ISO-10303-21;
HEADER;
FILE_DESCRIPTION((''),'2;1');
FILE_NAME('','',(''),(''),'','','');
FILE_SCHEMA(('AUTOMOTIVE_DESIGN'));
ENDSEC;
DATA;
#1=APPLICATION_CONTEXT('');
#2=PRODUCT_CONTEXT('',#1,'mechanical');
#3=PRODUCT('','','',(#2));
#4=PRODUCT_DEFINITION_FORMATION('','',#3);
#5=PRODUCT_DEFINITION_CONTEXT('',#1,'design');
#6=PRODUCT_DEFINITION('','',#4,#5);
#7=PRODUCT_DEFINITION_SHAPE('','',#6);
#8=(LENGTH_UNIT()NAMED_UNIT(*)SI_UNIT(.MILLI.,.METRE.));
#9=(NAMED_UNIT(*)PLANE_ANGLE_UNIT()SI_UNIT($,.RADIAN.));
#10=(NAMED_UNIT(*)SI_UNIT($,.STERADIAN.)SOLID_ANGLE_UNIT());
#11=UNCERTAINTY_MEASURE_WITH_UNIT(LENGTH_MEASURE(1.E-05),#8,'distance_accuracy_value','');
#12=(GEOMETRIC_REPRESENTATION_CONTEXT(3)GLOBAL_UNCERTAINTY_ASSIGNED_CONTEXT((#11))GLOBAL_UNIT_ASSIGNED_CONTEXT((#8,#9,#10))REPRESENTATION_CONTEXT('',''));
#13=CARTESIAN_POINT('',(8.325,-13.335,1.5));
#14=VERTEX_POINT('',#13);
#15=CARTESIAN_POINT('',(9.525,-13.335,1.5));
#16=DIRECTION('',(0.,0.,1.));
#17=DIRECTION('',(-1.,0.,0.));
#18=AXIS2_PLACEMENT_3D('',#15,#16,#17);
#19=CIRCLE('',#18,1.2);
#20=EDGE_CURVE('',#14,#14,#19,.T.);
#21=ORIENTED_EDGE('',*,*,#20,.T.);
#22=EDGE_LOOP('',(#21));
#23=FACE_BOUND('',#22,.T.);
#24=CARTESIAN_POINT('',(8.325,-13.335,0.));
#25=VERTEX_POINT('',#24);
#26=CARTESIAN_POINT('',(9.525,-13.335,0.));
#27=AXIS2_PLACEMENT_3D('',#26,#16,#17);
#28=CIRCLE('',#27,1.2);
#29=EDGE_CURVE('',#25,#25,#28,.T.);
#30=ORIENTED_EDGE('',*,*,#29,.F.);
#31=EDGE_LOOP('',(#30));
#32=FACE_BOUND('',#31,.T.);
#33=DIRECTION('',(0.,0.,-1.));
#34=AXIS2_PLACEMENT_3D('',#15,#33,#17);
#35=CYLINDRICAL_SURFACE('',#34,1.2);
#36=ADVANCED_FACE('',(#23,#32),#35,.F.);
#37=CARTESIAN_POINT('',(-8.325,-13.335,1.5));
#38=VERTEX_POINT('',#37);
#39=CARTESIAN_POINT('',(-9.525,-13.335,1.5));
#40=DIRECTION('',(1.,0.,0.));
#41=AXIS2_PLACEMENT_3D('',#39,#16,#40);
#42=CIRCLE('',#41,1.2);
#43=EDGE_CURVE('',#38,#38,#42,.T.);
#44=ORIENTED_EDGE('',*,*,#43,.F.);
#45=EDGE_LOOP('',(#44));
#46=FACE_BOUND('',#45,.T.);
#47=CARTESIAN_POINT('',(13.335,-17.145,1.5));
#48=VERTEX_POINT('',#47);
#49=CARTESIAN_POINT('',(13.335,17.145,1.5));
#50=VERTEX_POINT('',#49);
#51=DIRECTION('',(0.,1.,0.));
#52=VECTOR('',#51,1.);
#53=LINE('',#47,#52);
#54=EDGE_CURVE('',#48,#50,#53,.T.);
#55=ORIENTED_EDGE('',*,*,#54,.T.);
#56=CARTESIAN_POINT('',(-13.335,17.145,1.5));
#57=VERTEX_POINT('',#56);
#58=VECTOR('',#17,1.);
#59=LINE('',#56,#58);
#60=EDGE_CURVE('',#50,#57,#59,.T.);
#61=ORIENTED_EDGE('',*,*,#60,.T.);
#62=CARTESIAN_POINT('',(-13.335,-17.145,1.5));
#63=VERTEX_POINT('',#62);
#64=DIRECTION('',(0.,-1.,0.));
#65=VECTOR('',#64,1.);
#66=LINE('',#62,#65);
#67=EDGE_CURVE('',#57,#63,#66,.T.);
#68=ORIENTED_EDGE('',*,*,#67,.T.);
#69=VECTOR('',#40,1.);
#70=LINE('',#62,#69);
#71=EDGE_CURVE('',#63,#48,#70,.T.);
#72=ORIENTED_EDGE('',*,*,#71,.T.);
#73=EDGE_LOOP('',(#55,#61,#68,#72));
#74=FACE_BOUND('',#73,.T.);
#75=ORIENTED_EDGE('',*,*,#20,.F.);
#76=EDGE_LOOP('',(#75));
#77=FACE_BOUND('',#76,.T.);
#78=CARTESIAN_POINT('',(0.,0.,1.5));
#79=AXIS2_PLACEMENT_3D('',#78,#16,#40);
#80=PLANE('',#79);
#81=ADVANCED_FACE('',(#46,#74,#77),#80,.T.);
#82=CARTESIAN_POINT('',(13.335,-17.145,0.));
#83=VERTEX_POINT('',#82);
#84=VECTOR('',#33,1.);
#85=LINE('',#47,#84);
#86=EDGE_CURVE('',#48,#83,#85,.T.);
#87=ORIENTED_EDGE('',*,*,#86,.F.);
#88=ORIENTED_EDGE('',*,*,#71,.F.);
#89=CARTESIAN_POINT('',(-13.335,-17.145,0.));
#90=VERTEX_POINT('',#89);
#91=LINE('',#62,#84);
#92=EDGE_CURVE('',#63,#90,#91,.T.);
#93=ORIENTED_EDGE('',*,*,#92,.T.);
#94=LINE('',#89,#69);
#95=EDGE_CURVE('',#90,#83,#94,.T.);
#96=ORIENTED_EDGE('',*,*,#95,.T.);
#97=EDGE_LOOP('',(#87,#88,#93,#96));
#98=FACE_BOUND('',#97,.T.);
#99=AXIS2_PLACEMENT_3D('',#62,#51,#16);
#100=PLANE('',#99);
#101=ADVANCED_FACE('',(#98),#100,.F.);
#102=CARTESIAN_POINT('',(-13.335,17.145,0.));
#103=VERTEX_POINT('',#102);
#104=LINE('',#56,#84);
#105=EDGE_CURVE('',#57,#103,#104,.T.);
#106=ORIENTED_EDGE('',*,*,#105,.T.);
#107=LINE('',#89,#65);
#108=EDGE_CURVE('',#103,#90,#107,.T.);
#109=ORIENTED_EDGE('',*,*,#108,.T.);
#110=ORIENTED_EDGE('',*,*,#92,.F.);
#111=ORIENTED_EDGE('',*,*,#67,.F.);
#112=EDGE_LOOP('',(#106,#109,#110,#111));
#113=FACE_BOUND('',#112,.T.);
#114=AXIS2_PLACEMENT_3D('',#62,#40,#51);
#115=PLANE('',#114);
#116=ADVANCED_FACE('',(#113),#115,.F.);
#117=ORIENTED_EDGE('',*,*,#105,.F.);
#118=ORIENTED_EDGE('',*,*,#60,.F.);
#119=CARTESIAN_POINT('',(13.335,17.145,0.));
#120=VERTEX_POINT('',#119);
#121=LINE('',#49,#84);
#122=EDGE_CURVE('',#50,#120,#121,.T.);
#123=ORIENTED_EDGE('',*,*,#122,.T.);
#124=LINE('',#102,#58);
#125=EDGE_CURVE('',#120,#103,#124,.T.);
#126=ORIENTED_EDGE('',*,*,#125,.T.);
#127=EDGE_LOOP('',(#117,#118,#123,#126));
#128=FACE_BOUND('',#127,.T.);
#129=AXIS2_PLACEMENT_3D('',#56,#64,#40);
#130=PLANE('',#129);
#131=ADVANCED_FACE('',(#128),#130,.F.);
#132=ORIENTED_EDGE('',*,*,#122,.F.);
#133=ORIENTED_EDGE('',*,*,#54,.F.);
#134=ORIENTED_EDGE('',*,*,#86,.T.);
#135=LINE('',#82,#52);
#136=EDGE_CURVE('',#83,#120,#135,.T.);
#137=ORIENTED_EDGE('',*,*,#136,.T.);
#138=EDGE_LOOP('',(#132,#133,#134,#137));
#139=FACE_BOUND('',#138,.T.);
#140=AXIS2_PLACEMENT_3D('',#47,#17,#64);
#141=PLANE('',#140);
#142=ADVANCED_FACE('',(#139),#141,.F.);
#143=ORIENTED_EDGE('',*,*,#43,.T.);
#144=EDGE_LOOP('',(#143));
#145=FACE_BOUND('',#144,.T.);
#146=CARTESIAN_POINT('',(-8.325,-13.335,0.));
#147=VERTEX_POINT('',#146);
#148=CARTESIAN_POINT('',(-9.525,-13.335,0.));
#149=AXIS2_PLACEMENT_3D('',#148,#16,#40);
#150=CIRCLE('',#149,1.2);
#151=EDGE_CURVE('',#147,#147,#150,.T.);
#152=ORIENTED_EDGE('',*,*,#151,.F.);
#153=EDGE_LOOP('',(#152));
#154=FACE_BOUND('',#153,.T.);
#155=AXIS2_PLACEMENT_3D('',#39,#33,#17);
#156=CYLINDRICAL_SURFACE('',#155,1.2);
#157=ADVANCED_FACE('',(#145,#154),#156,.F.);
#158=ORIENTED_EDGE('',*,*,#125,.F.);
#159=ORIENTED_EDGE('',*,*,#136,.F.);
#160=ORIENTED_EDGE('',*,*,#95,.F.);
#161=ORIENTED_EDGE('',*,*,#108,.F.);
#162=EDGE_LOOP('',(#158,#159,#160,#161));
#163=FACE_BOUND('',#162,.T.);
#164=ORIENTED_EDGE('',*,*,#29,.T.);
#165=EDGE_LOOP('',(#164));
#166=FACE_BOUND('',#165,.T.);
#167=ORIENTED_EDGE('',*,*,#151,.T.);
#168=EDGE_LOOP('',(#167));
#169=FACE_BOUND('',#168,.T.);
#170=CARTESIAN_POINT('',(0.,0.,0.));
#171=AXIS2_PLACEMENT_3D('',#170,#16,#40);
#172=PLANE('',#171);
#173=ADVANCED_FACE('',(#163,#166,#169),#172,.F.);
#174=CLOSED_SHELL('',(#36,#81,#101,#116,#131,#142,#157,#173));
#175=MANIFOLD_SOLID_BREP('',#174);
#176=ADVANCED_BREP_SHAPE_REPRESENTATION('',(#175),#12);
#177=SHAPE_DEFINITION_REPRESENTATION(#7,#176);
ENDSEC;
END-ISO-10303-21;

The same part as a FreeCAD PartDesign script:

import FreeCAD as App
import Part
import Sketcher

V = App.Vector
Q = App.Units.Quantity


def add_polygon(sketch, points):
    """Adds a closed chain of lines whose ends are joined by coincident constraints."""
    first, n = sketch.GeometryCount, len(points)
    for a, b in zip(points, points[1:] + points[:1]):
        sketch.addGeometry(Part.LineSegment(App.Vector(*a, 0), App.Vector(*b, 0)), False)
    for i in range(n):
        sketch.addConstraint(Sketcher.Constraint("Coincident", first + i, 2, first + (i + 1) % n, 1))

doc = App.newDocument("Part")
body = doc.addObject("PartDesign::Body", "Body")

# Sketch on XY plane
sketch1 = doc.addObject("Sketcher::SketchObject", "Sketch")
body.addObject(sketch1)
sketch1.AttachmentSupport = (doc.XY_Plane, [""])
sketch1.MapMode = "FlatFace"
add_polygon(sketch1, [(-13.335, -17.145), (13.335, -17.145), (13.335, 17.145), (-13.335, 17.145)])  # lines 0-3
sketch1.addGeometry(Part.Circle(V(9.525, -13.335, 0), V(0, 0, 1), 1.2), False)  # 4
sketch1.addGeometry(Part.Circle(V(-9.525, -13.335, 0), V(0, 0, 1), 1.2), False)  # 5
sketch1.addConstraint([
    Sketcher.Constraint("Horizontal", 0),
    Sketcher.Constraint("Vertical", 1),
    Sketcher.Constraint("Horizontal", 2),
    Sketcher.Constraint("Vertical", 3),
    Sketcher.Constraint("Equal", 4, 5),
    Sketcher.Constraint("Symmetric", 0, 2, 2, 2, -1, 1),
    Sketcher.Constraint("Symmetric", 4, 3, 5, 3, -2),
    Sketcher.Constraint("Diameter", 4, Q("2.4 mm")),
    Sketcher.Constraint("DistanceX", 0, 1, 0, 2, Q("26.67 mm")),
    Sketcher.Constraint("DistanceY", 1, 1, 1, 2, Q("34.29 mm")),
    Sketcher.Constraint("DistanceX", 5, 3, 4, 3, Q("19.05 mm")),
    Sketcher.Constraint("DistanceY", 0, 2, 4, 3, Q("3.81 mm")),
])
pad1 = doc.addObject("PartDesign::Pad", "Pad")
body.addObject(pad1)
pad1.Profile = sketch1
pad1.Length = 1.5

doc.recompute()
